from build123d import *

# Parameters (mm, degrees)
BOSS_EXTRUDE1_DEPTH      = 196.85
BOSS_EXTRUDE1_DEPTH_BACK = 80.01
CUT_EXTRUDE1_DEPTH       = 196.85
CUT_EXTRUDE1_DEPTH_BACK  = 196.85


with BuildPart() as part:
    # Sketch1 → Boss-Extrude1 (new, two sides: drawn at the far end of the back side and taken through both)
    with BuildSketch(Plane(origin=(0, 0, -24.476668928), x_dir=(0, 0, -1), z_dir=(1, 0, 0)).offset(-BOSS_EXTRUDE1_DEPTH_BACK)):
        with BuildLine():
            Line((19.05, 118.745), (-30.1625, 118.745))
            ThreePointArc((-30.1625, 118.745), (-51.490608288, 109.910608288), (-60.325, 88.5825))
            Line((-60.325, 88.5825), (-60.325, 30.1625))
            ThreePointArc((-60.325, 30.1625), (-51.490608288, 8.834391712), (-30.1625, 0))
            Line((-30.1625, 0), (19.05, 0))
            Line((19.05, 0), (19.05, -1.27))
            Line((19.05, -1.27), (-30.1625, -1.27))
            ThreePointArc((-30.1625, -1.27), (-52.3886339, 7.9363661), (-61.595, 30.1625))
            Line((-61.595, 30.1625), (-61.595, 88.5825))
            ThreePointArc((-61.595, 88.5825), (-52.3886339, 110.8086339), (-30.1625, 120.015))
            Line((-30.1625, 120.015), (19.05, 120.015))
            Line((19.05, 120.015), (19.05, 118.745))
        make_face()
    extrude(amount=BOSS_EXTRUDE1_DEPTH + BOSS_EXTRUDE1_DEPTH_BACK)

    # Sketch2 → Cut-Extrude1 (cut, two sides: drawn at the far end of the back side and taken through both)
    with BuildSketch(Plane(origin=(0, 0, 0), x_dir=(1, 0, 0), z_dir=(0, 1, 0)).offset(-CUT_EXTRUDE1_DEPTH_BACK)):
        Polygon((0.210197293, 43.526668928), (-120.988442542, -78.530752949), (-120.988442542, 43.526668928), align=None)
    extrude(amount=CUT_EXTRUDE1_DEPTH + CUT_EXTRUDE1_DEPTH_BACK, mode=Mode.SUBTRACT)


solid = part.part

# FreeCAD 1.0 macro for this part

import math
import FreeCAD as App
import Part
import Sketcher
from FreeCAD import Vector
Q = App.Units.Quantity


def add_polygon(sketch, points):
    """Adds a closed chain of lines whose ends are joined by coincident constraints."""
    first, n = sketch.GeometryCount, len(points)
    for a, b in zip(points, points[1:] + points[:1]):
        sketch.addGeometry(Part.LineSegment(App.Vector(*a, 0), App.Vector(*b, 0)), False)
    for i in range(n):
        sketch.addConstraint(Sketcher.Constraint("Coincident", first + i, 2, first + (i + 1) % n, 1))

doc = App.newDocument("Part")
params = doc.addObject("Spreadsheet::Sheet", "Params")
for row, (alias, value) in enumerate([
    ("sketch1_width", "2.3 in"),
    ("sketch1_radius", "1.1875 in"),
    ("sketch1_width2", "0.05 in"),
    ("sketch1_height", "1.9375 in"),
    ("pad1_length", "7.75 in"),
    ("pad1_length2", "3.15 in"),
], start=1):
    params.set(f"A{row}", alias)
    params.set(f"B{row}", "=" + value)
    params.setAlias(f"B{row}", alias)

body = doc.addObject("PartDesign::Body", "Body")

sketch1 = doc.addObject("Sketcher::SketchObject", "Sketch")
body.addObject(sketch1)
sketch1.AttachmentSupport = (doc.YZ_Plane, [""])
sketch1.MapMode = "FlatFace"
sketch1.addGeometry([
    Part.LineSegment(Vector(118.7, 5.7, 0), Vector(118.7, -43.5, 0)),
    Part.LineSegment(Vector(118.7, -43.5, 0), Vector(120, -43.5, 0)),
    Part.LineSegment(Vector(120, -43.5, 0), Vector(120, 5.7, 0)),
    Part.ArcOfCircle(Part.Circle(Vector(88.6, 5.7, 0), Vector(0, 0, 1), 31.4), math.radians(0), math.radians(90)),
    Part.LineSegment(Vector(88.6, 37.1, 0), Vector(30.2, 37.1, 0)),
    Part.ArcOfCircle(Part.Circle(Vector(30.2, 5.7, 0), Vector(0, 0, 1), 31.4), math.radians(90), math.radians(180)),
    Part.LineSegment(Vector(-1.3, 5.7, 0), Vector(-1.3, -43.5, 0)),
    Part.LineSegment(Vector(-1.3, -43.5, 0), Vector(0, -43.5, 0)),
    Part.LineSegment(Vector(0, -43.5, 0), Vector(0, 5.7, 0)),
    Part.ArcOfCircle(Part.Circle(Vector(30.2, 5.7, 0), Vector(0, 0, 1), 30.2), math.radians(90), math.radians(180)),
    Part.LineSegment(Vector(30.2, 35.8, 0), Vector(88.6, 35.8, 0)),
    Part.ArcOfCircle(Part.Circle(Vector(88.6, 5.7, 0), Vector(0, 0, 1), 30.2), math.radians(0), math.radians(90)),
], False)
sketch1.addConstraint([
    Sketcher.Constraint("Coincident", 0, 2, 1, 1),
    Sketcher.Constraint("Coincident", 1, 2, 2, 1),
    Sketcher.Constraint("Tangent", 2, 2, 3, 1),
    Sketcher.Constraint("Tangent", 3, 2, 4, 1),
    Sketcher.Constraint("Tangent", 4, 2, 5, 1),
    Sketcher.Constraint("Tangent", 5, 2, 6, 1),
    Sketcher.Constraint("Coincident", 6, 2, 7, 1),
    Sketcher.Constraint("Coincident", 7, 2, 8, 1),
    Sketcher.Constraint("Tangent", 8, 2, 9, 2),
    Sketcher.Constraint("Tangent", 9, 1, 10, 1),
    Sketcher.Constraint("Tangent", 10, 2, 11, 2),
    Sketcher.Constraint("Tangent", 11, 1, 0, 1),
    Sketcher.Constraint("Vertical", 0),
    Sketcher.Constraint("Horizontal", 1),
    Sketcher.Constraint("Vertical", 2),
    Sketcher.Constraint("Horizontal", 4),
    Sketcher.Constraint("Vertical", 6),
    Sketcher.Constraint("Horizontal", 7),
    Sketcher.Constraint("Vertical", 8),
    Sketcher.Constraint("Horizontal", 10),
    Sketcher.Constraint("Coincident", 9, 3, 5, 3),
    Sketcher.Constraint("Coincident", 11, 3, 3, 3),
    Sketcher.Constraint("Equal", 3, 5),
    Sketcher.Constraint("PointOnObject", 7, 2, -2),
    Sketcher.Constraint("Horizontal", 1, 2, 6, 2),
    Sketcher.Constraint("DistanceX", 4, 2, 4, 1, Q("2.3 in")),
    Sketcher.Constraint("Radius", 9, Q("1.1875 in")),
    Sketcher.Constraint("DistanceX", 1, 1, 1, 2, Q("0.05 in")),
    Sketcher.Constraint("DistanceY", 0, 2, 0, 1, Q("1.9375 in")),
    Sketcher.Constraint("DistanceY", -1, 1, 3, 3, Q("5.685831 mm")),
])
sketch1.setExpression("Constraints[25]", "Params.sketch1_width")
sketch1.setExpression("Constraints[26]", "Params.sketch1_radius")
sketch1.setExpression("Constraints[27]", "Params.sketch1_width2")
sketch1.setExpression("Constraints[28]", "Params.sketch1_height")
pad1 = doc.addObject("PartDesign::Pad", "Pad")
body.addObject(pad1)
pad1.Profile = sketch1
pad1.Type = "TwoLengths"
pad1.setExpression("Length", "Params.pad1_length")
pad1.setExpression("Length2", "Params.pad1_length2")

sketch2 = doc.addObject("Sketcher::SketchObject", "Sketch001")
body.addObject(sketch2)
sketch2.AttachmentSupport = (doc.XZ_Plane, [""])
sketch2.MapMode = "FlatFace"
add_polygon(sketch2, [(-121, 79), (0, -44), (-121, -44)])
sketch2.addConstraint([
    Sketcher.Constraint("Horizontal", 1),
    Sketcher.Constraint("Vertical", 2),
    Sketcher.Constraint("DistanceX", 1, 2, 1, 1, Q("4.7716 in")),
    Sketcher.Constraint("DistanceY", 2, 1, 2, 2, Q("122.057422 mm")),
    Sketcher.Constraint("DistanceY", 0, 2, -1, 1, Q("43.526669 mm")),
    Sketcher.Constraint("DistanceX", -1, 1, 0, 2, Q("0.210197 mm")),
])
pocket1 = doc.addObject("PartDesign::Pocket", "Pocket")
body.addObject(pocket1)
pocket1.Profile = sketch2
pocket1.Type = "ThroughAll"
pocket1.Midplane = True

doc.recompute()
